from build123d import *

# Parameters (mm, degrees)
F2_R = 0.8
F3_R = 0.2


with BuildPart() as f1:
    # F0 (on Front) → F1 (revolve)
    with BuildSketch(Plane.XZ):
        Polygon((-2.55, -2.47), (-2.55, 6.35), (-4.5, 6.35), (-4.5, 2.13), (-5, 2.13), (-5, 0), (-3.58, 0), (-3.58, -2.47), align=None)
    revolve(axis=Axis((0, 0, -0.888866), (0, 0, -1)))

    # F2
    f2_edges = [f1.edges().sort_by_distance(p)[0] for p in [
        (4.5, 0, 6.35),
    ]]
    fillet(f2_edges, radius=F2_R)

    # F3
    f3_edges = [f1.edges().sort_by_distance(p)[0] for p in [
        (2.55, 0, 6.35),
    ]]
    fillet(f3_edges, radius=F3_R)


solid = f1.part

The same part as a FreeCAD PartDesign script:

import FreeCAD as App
import Part
import Sketcher

V = App.Vector


def edges_at(feature, points):
    """Names of the edges that pass closest to the given points."""
    edges = feature.Shape.Edges
    near = lambda p: min(range(len(edges)), key=lambda i: edges[i].distToShape(Part.Vertex(*p))[0])
    return sorted({f"Edge{near(p) + 1}" for p in points})


def add_polygon(sketch, points):
    """Adds a closed chain of lines whose ends are joined by coincident constraints."""
    first, n = sketch.GeometryCount, len(points)
    for a, b in zip(points, points[1:] + points[:1]):
        sketch.addGeometry(Part.LineSegment(App.Vector(*a, 0), App.Vector(*b, 0)), False)
    for i in range(n):
        sketch.addConstraint(Sketcher.Constraint("Coincident", first + i, 2, first + (i + 1) % n, 1))

doc = App.newDocument("Part")
body = doc.addObject("PartDesign::Body", "Body")

sketch1 = body.newObject("Sketcher::SketchObject", "Sketch")
sketch1.AttachmentSupport = (doc.getObject("XZ_Plane"), [""])
sketch1.MapMode = "FlatFace"
add_polygon(sketch1, [(-2.5, -2.5), (-2.5, 6.3), (-4.5, 6.3), (-4.5, 2.1), (-5, 2.1), (-5, 0), (-3.6, 0), (-3.6, -2.5)])
sketch1.addConstraint([
    Sketcher.Constraint("Vertical", 0),
    Sketcher.Constraint("Horizontal", 1),
    Sketcher.Constraint("Vertical", 2),
    Sketcher.Constraint("Horizontal", 3),
    Sketcher.Constraint("Vertical", 4),
    Sketcher.Constraint("Horizontal", 5),
    Sketcher.Constraint("Vertical", 6),
    Sketcher.Constraint("Horizontal", 7),
    Sketcher.Constraint("PointOnObject", 4, 2, -1),
    Sketcher.Constraint("DistanceX", 3, 2, 3, 1, 0.5),
    Sketcher.Constraint("DistanceX", 3, 2, -1, 1, 5.0),
    Sketcher.Constraint("DistanceX", 1, 2, 1, 1, 1.95),
    Sketcher.Constraint("DistanceX", 5, 1, 5, 2, 1.42),
    Sketcher.Constraint("DistanceY", 0, 1, 0, 2, 8.82),
    Sketcher.Constraint("DistanceY", 2, 2, 2, 1, 4.22),
    Sketcher.Constraint("DistanceY", 4, 2, 4, 1, 2.13),
])
revolution = body.newObject("PartDesign::Revolution", "Revolution")
revolution.Profile = sketch1
revolution.ReferenceAxis = (sketch1, ["V_Axis"])
revolution.Angle = 360
doc.recompute()

fillet = body.newObject("PartDesign::Fillet", "Fillet")
fillet.Base = (revolution, edges_at(revolution, [(4.5, 0, 6.35)]))
fillet.Radius = 0.8
doc.recompute()

fillet2 = body.newObject("PartDesign::Fillet", "Fillet001")
fillet2.Base = (fillet, edges_at(fillet, [(2.55, 0, 6.35)]))
fillet2.Radius = 0.2

doc.recompute()
